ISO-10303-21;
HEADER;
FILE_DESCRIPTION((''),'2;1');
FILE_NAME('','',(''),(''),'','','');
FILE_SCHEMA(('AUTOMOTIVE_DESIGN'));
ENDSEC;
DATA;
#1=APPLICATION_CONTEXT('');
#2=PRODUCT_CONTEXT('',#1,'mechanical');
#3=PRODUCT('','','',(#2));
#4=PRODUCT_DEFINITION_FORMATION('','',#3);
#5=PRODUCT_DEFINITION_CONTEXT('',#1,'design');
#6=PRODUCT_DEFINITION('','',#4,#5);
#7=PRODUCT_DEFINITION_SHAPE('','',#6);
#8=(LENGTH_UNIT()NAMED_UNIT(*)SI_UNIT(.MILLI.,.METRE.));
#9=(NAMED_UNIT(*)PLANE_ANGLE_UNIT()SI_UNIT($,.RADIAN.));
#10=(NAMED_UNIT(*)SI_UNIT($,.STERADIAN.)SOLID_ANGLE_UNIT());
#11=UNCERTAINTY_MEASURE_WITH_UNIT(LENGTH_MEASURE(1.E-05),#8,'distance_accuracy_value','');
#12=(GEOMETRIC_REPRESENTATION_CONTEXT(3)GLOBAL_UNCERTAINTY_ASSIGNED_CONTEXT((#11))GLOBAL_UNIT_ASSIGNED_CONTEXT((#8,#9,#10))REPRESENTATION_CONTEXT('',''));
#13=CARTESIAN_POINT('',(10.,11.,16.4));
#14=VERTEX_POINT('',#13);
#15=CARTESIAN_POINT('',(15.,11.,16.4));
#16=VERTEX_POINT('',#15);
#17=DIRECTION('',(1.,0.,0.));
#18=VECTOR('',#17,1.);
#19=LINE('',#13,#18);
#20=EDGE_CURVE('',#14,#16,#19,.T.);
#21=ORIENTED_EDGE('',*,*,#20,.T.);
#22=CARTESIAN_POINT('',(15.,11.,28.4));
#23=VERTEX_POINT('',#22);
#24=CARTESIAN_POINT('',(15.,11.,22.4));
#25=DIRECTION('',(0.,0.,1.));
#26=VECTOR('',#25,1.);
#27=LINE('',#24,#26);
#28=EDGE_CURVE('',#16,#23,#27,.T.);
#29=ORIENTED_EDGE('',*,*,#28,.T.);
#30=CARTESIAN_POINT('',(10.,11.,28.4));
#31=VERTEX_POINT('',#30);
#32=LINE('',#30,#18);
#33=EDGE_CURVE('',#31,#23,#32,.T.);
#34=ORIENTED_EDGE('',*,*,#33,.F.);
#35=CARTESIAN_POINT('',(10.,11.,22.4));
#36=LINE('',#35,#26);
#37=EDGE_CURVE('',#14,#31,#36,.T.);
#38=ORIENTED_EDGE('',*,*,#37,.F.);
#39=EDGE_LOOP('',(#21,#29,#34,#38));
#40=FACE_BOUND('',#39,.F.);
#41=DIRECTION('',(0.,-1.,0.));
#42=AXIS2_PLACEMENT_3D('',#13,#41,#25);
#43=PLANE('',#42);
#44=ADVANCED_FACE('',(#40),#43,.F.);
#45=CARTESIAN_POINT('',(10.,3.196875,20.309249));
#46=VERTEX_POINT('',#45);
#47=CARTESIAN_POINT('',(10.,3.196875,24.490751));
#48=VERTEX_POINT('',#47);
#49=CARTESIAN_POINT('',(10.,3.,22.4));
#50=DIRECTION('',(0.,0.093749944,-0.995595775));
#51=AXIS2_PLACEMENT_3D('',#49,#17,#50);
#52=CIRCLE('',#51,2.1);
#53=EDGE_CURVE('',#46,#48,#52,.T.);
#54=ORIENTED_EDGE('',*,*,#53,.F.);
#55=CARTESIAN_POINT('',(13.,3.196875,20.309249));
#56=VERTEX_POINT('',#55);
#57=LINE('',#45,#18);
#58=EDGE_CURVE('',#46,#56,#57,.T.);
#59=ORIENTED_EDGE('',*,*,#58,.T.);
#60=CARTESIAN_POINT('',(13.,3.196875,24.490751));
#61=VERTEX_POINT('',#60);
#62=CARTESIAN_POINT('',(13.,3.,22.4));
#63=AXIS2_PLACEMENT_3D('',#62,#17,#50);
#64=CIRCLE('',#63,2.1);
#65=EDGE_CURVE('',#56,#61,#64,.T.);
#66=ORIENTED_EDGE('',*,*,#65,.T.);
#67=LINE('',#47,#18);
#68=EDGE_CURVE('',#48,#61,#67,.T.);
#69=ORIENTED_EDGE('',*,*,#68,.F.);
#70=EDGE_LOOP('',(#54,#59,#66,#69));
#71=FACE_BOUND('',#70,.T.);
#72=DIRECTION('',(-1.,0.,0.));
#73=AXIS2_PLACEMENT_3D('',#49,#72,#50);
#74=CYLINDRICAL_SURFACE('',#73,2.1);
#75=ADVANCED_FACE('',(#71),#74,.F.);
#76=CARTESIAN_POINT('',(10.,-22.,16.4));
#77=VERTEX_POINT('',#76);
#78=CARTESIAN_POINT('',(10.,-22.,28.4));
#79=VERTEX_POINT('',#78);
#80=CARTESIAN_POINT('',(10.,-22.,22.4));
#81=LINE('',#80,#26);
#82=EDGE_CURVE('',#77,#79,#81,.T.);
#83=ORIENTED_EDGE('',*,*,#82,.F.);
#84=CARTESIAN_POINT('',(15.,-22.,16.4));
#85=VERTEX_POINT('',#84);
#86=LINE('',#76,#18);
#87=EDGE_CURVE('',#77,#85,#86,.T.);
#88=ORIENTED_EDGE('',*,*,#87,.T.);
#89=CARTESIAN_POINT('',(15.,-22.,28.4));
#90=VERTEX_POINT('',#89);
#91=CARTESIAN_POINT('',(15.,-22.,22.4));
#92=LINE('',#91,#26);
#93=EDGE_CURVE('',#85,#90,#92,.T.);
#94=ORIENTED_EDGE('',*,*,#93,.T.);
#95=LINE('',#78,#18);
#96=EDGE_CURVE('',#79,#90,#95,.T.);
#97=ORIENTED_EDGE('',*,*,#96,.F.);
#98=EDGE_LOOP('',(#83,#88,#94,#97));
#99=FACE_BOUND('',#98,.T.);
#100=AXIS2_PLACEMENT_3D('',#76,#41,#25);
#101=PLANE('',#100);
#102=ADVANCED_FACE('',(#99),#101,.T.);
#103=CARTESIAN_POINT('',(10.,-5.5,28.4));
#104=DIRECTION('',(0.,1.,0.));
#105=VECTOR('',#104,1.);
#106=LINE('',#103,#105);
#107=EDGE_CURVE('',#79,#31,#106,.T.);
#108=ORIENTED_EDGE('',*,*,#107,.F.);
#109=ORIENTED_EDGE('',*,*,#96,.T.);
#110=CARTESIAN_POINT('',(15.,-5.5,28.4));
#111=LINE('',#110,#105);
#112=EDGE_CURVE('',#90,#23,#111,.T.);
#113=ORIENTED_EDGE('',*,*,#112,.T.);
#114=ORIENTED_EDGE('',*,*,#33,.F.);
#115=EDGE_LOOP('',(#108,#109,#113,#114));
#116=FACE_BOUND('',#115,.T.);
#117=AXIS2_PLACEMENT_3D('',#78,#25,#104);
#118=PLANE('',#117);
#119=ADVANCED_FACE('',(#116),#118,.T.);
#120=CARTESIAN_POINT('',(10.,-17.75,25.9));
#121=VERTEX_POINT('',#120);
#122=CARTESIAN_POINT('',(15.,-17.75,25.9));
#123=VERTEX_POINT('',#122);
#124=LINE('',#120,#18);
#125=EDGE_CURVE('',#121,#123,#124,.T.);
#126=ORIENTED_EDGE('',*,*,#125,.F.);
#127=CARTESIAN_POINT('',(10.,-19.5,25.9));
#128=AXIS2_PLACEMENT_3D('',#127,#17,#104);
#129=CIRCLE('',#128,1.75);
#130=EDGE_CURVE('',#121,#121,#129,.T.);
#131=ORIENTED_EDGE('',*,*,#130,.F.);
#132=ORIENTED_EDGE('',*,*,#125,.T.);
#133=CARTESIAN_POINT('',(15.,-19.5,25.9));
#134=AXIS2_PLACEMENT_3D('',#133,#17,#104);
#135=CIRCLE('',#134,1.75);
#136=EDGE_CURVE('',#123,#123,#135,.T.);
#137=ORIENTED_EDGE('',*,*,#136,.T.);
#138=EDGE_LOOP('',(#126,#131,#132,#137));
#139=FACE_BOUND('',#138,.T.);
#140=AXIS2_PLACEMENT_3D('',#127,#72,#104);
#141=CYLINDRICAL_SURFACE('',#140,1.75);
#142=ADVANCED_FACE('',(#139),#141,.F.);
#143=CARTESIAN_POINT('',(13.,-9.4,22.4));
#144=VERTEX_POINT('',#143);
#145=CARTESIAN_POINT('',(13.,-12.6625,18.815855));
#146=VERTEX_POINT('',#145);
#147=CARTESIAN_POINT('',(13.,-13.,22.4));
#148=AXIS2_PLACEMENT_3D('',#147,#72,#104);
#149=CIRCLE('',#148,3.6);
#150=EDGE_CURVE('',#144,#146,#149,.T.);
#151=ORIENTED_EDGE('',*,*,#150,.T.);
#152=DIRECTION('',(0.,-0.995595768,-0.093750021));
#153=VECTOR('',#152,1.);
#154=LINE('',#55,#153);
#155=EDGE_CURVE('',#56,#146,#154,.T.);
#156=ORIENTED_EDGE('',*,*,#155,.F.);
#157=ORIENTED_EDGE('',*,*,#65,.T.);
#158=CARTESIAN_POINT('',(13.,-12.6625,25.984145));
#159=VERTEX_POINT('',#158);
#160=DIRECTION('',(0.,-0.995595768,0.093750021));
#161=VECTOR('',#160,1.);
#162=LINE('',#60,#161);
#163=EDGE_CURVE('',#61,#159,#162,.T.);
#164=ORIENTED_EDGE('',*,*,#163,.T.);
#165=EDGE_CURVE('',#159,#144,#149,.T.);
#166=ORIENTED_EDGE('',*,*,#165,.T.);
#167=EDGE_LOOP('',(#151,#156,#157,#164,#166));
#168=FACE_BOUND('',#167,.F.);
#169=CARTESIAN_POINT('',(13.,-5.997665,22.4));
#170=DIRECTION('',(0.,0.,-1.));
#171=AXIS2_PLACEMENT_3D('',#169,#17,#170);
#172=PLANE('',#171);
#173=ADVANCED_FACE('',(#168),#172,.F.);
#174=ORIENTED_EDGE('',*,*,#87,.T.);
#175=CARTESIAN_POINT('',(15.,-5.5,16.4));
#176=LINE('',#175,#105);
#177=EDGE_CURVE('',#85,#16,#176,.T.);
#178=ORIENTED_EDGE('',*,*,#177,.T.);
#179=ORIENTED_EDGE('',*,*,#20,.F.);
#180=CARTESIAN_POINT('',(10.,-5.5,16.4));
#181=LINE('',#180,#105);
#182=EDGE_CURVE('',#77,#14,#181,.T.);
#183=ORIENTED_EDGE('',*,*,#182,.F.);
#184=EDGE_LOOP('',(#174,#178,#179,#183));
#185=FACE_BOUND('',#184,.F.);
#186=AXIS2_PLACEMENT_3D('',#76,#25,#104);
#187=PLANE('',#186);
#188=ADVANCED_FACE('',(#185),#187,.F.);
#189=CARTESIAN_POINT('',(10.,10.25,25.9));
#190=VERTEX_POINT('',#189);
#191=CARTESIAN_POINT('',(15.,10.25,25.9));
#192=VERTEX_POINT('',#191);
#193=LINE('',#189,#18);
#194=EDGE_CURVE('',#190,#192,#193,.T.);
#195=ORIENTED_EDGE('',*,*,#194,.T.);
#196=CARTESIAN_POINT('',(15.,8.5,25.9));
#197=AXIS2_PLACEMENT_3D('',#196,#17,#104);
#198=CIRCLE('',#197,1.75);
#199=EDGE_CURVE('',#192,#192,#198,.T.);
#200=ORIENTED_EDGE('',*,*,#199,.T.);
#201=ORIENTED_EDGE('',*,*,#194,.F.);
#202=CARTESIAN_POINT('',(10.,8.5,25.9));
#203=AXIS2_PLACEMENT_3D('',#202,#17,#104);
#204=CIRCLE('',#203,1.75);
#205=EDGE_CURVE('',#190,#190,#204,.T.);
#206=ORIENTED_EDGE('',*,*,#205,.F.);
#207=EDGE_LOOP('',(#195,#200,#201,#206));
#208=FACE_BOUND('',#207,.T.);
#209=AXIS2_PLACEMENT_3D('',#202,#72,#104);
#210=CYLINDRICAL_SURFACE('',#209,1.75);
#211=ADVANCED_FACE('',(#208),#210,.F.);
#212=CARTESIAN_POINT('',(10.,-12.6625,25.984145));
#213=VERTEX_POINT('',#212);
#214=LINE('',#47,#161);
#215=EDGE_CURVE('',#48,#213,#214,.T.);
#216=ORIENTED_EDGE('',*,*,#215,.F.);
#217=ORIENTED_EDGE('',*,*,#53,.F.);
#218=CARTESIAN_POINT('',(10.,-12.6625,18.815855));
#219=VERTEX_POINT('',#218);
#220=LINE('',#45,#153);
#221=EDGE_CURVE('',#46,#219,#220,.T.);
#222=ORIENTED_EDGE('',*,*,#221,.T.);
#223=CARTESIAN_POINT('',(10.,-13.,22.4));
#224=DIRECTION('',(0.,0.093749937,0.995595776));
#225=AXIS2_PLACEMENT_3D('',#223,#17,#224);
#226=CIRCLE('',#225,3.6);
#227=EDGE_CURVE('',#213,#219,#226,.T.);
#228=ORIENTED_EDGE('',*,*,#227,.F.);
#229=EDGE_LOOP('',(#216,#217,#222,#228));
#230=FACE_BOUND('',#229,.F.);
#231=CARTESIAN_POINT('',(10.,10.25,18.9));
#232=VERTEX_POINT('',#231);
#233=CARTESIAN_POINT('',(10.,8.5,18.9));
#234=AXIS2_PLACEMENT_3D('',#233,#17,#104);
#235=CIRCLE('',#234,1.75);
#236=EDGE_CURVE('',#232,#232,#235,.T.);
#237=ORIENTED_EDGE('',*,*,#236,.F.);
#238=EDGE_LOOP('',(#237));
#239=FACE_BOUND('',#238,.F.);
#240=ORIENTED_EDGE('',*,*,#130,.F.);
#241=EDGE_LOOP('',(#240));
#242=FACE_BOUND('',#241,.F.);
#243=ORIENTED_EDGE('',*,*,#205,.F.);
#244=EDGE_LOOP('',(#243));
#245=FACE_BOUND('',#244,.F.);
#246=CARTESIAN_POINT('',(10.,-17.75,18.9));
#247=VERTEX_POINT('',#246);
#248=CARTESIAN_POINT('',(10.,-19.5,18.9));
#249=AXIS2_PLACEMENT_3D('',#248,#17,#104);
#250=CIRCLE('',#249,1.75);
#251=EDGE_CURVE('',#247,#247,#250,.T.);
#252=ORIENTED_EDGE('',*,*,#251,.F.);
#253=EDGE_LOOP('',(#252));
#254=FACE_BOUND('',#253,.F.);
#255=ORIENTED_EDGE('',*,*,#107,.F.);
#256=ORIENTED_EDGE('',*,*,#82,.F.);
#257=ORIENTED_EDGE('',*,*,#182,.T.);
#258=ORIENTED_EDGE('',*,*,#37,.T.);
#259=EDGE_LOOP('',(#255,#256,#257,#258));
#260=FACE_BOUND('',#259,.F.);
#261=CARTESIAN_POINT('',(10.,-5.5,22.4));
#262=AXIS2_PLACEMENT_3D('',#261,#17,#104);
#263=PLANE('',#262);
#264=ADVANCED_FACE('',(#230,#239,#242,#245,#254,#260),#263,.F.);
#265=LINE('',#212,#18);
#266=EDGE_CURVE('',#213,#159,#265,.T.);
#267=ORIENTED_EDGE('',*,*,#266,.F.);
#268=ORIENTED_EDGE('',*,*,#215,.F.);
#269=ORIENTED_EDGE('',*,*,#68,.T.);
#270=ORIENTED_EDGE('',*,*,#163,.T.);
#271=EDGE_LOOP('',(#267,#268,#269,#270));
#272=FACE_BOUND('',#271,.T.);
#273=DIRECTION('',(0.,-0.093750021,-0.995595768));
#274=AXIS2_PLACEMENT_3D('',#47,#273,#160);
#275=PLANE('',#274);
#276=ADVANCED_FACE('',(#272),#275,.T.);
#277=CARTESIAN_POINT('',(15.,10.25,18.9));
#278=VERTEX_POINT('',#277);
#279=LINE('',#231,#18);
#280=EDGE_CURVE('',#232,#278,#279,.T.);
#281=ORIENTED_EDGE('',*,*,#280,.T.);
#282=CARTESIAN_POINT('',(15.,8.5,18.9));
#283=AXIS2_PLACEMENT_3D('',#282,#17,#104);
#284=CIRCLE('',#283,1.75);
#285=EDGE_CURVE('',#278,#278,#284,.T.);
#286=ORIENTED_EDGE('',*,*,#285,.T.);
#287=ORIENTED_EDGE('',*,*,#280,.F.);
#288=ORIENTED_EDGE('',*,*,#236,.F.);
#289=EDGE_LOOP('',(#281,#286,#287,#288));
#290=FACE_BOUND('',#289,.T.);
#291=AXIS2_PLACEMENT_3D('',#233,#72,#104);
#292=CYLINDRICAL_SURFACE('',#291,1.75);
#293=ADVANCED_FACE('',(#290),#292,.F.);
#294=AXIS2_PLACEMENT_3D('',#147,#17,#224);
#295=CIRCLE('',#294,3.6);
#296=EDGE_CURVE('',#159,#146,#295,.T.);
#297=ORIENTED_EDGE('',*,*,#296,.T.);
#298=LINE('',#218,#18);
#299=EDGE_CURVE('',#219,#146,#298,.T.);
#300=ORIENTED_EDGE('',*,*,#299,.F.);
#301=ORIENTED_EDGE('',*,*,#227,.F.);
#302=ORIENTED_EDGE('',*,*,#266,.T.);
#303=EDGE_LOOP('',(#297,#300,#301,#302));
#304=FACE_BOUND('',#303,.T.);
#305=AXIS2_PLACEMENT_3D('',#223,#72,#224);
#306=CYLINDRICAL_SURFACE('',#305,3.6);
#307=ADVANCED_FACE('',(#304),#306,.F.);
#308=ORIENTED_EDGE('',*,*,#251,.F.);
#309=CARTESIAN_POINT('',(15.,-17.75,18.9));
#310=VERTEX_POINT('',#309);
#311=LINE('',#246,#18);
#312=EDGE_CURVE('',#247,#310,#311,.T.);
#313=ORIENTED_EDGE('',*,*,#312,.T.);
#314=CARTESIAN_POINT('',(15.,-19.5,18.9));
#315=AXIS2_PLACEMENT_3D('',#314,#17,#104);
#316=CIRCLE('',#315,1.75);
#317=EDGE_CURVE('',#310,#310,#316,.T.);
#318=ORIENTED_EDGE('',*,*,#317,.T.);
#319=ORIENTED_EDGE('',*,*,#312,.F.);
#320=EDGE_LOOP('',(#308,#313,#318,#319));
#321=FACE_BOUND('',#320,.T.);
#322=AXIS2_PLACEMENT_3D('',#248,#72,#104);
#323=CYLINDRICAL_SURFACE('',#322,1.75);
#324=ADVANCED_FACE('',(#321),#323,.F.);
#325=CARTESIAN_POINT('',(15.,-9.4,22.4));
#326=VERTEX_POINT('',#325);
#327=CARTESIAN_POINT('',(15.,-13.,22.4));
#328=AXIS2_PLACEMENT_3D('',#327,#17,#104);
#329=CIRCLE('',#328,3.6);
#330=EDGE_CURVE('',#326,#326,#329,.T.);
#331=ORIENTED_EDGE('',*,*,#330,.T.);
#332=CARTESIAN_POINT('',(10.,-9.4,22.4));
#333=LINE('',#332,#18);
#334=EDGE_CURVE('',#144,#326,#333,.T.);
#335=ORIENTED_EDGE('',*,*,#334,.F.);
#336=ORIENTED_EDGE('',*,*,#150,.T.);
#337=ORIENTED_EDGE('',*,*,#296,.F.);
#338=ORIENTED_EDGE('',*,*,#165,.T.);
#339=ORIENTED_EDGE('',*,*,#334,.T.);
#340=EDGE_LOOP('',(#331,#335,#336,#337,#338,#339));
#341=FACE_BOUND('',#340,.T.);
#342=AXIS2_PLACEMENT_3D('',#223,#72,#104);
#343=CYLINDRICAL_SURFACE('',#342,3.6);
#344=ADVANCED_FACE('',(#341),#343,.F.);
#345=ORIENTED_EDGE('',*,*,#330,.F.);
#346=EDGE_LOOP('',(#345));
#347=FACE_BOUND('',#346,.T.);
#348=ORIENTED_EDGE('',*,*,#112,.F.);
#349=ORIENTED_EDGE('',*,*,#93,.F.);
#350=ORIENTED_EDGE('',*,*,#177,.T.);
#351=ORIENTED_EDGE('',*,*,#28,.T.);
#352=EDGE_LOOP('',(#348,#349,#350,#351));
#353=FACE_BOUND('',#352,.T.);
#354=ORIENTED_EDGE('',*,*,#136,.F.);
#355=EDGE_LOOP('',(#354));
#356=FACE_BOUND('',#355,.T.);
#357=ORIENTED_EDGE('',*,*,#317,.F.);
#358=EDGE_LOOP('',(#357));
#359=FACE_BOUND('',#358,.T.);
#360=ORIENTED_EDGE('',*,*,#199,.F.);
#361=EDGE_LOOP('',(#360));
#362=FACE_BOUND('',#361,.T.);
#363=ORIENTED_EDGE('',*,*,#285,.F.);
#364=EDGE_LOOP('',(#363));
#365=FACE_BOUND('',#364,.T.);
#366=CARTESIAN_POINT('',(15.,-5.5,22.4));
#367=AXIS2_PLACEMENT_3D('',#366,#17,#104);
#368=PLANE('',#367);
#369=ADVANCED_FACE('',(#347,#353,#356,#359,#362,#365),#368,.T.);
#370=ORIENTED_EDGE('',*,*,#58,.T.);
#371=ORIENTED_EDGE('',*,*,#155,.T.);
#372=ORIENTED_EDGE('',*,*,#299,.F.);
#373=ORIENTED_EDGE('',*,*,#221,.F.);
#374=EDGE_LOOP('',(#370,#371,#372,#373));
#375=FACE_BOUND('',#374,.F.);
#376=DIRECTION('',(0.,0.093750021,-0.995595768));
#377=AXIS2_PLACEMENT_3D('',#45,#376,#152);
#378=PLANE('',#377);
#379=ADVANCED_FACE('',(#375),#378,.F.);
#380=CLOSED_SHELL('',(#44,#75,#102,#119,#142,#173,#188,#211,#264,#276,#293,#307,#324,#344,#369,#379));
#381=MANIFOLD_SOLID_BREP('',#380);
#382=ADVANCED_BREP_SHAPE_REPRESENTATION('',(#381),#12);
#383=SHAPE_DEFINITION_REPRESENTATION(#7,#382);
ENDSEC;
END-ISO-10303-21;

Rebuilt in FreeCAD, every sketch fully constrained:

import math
import FreeCAD as App
import Part
import Sketcher
Q = App.Units.Quantity


def add_polygon(sketch, points):
    """Adds a closed chain of lines whose ends are joined by coincident constraints."""
    first, n = sketch.GeometryCount, len(points)
    for a, b in zip(points, points[1:] + points[:1]):
        sketch.addGeometry(Part.LineSegment(App.Vector(*a, 0), App.Vector(*b, 0)), False)
    for i in range(n):
        sketch.addConstraint(Sketcher.Constraint("Coincident", first + i, 2, first + (i + 1) % n, 1))

doc = App.newDocument("Part")
body = doc.addObject("PartDesign::Body", "Body")

sketch1 = body.newObject("Sketcher::SketchObject", "Sketch")
sketch1.AttachmentSupport = (doc.getObject("YZ_Plane"), [""])
sketch1.MapMode = "FlatFace"
add_polygon(sketch1, [(0, 12), (0, 0), (33, 0), (33, 12)])
sketch1.addGeometry(Part.Circle(App.Vector(2.5, 2.5, 0), App.Vector(0, 0, 1), 1.8), False)
sketch1.addGeometry(Part.Circle(App.Vector(30.5, 2.5, 0), App.Vector(0, 0, 1), 1.8), False)
sketch1.addGeometry(Part.Circle(App.Vector(2.5, 9.5, 0), App.Vector(0, 0, 1), 1.8), False)
sketch1.addGeometry(Part.Circle(App.Vector(30.5, 9.5, 0), App.Vector(0, 0, 1), 1.8), False)
sketch1.addConstraint([
    Sketcher.Constraint("Vertical", 0),
    Sketcher.Constraint("Horizontal", 1),
    Sketcher.Constraint("Vertical", 2),
    Sketcher.Constraint("Horizontal", 3),
    Sketcher.Constraint("Coincident", 0, 2, -1, 1),
    Sketcher.Constraint("Equal", 4, 5),
    Sketcher.Constraint("Equal", 5, 6),
    Sketcher.Constraint("Equal", 6, 7),
    Sketcher.Constraint("Horizontal", 4, 3, 5, 3),
    Sketcher.Constraint("Horizontal", 6, 3, 7, 3),
    Sketcher.Constraint("Vertical", 4, 3, 6, 3),
    Sketcher.Constraint("Vertical", 5, 3, 7, 3),
    Sketcher.Constraint("Diameter", 4, Q("3.5 mm")),
    Sketcher.Constraint("DistanceX", 1, 1, 1, 2, Q("33 mm")),
    Sketcher.Constraint("DistanceY", 0, 2, 0, 1, Q("12 mm")),
    Sketcher.Constraint("DistanceX", 4, 3, 5, 3, Q("28 mm")),
    Sketcher.Constraint("DistanceY", 4, 3, 6, 3, Q("7 mm")),
    Sketcher.Constraint("DistanceX", -1, 1, 4, 3, Q("2.5 mm")),
    Sketcher.Constraint("DistanceY", -1, 1, 4, 3, Q("2.5 mm")),
])
pad1 = body.newObject("PartDesign::Pad", "Pad")
pad1.Profile = sketch1
pad1.Length = 5

sketch2 = body.newObject("Sketcher::SketchObject", "Sketch001")
sketch2.AttachmentSupport = (doc.getObject("YZ_Plane"), [""])
sketch2.MapMode = "FlatFace"
sketch2.addGeometry([
    Part.ArcOfCircle(Part.Circle(App.Vector(9, 6, 0), App.Vector(0, 0, 1), 3.6), math.radians(85), math.radians(275)),
    Part.LineSegment(App.Vector(9.3, 2.4, 0), App.Vector(25.2, 3.9, 0)),
    Part.ArcOfCircle(Part.Circle(App.Vector(25, 6, 0), App.Vector(0, 0, 1), 2.1), math.radians(-85), math.radians(85)),
    Part.LineSegment(App.Vector(25.2, 8.1, 0), App.Vector(9.3, 9.6, 0)),
], False)
sketch2.addConstraint([
    Sketcher.Constraint("Tangent", 0, 2, 1, 1),
    Sketcher.Constraint("Tangent", 1, 2, 2, 1),
    Sketcher.Constraint("Tangent", 2, 2, 3, 1),
    Sketcher.Constraint("Tangent", 3, 2, 0, 1),
    Sketcher.Constraint("Horizontal", 0, 3, 2, 3),
    Sketcher.Constraint("Radius", 0, Q("3.6 mm")),
    Sketcher.Constraint("Radius", 2, Q("2.1 mm")),
    Sketcher.Constraint("DistanceX", -1, 1, 0, 3, Q("9 mm")),
    Sketcher.Constraint("DistanceY", -1, 1, 0, 3, Q("6 mm")),
    Sketcher.Constraint("DistanceX", -1, 1, 2, 3, Q("25 mm")),
])
pocket1 = body.newObject("PartDesign::Pocket", "Pocket")
pocket1.Profile = sketch2
pocket1.Length = 3
pocket1.Reversed = True

sketch3 = body.newObject("Sketcher::SketchObject", "Sketch002")
sketch3.AttachmentSupport = (doc.getObject("YZ_Plane"), [""])
sketch3.MapMode = "FlatFace"
sketch3.addGeometry(Part.Circle(App.Vector(9, 6, 0), App.Vector(0, 0, 1), 3.6), False)
sketch3.addConstraint([
    Sketcher.Constraint("Diameter", 0, Q("7.2 mm")),
    Sketcher.Constraint("DistanceX", -1, 1, 0, 3, Q("9 mm")),
    Sketcher.Constraint("DistanceY", -1, 1, 0, 3, Q("6 mm")),
])
pocket2 = body.newObject("PartDesign::Pocket", "Pocket001")
pocket2.Profile = sketch3
pocket2.Length = 5
pocket2.Reversed = True
body2 = doc.addObject("PartDesign::Body", "Body001")
doc.recompute()

body.Placement = App.Placement(App.Vector(10, -22, 16.4), App.Rotation(App.Vector(0, 0, 1), 0))
boolean = body2.newObject("PartDesign::Boolean", "Boolean")
boolean.Type = "Fuse"
boolean.addObjects([body])

doc.recompute()
